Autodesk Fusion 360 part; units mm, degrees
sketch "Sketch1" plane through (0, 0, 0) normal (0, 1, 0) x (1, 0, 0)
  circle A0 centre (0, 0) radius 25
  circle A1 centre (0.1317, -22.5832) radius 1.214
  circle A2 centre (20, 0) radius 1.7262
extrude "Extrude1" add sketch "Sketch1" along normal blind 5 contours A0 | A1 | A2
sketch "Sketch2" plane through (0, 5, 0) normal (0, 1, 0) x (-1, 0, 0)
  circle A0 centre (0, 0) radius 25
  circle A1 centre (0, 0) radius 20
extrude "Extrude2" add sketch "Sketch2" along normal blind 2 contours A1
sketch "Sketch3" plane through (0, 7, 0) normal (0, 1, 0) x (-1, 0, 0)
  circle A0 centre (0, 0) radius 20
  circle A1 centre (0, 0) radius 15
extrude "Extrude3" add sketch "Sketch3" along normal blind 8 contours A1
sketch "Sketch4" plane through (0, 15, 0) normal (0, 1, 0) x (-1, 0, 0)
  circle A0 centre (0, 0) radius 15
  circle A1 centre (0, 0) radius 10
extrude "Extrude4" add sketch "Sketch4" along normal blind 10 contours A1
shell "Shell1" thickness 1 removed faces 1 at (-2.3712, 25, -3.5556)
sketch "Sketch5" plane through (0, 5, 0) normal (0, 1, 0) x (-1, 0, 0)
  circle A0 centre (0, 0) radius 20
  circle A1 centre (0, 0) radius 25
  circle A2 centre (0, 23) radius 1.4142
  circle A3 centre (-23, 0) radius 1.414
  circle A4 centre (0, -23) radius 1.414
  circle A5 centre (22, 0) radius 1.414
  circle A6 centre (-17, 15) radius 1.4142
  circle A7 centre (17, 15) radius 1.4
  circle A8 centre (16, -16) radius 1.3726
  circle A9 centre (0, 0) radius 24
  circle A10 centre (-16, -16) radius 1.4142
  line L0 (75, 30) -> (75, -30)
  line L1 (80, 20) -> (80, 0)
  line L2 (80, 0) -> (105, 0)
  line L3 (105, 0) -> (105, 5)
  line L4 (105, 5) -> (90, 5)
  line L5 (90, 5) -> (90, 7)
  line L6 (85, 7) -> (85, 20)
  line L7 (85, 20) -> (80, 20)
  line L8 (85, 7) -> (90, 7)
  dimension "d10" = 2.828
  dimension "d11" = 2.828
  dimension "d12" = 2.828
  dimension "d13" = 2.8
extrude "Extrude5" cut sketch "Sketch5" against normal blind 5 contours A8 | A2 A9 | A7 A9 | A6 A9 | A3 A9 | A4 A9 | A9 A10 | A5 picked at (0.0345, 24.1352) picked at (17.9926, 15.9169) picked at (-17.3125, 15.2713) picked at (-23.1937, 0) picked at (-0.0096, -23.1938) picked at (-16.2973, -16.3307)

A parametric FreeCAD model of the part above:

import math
import FreeCAD as App
import Part
import Sketcher
from FreeCAD import Vector
Q = App.Units.Quantity


def faces_at(feature, points):
    """Names of the faces that lie closest to the given points."""
    faces = feature.Shape.Faces
    near = lambda p: min(range(len(faces)), key=lambda i: faces[i].distToShape(Part.Vertex(*p))[0])
    return sorted({f"Face{near(p) + 1}" for p in points})

doc = App.newDocument("Part")
params = doc.addObject("Spreadsheet::Sheet", "Params")
for row, (alias, value) in enumerate([
    ("sketch1_diameter", "50 mm"),
    ("pad1_length", "5 mm"),
    ("sketch2_diameter", "40 mm"),
    ("pad2_length", "2 mm"),
    ("sketch3_diameter", "30 mm"),
    ("pad3_length", "8 mm"),
    ("sketch4_diameter", "20 mm"),
    ("pad4_length", "10 mm"),
    ("thickness_wall", "1 mm"),
    ("sketch5_radius", "1.4 mm"),
    ("sketch5_radius2", "24 mm"),
    ("pocket1_length", "5 mm"),
], start=1):
    params.set(f"A{row}", alias)
    params.set(f"B{row}", "=" + value)
    params.setAlias(f"B{row}", alias)

body = doc.addObject("PartDesign::Body", "Body")

# Sketch on XZ plane
sketch1 = doc.addObject("Sketcher::SketchObject", "Sketch")
body.addObject(sketch1)
sketch1.AttachmentSupport = (doc.XZ_Plane, [""])
sketch1.MapMode = "FlatFace"
sketch1.addGeometry(Part.Circle(Vector(0, 0, 0), Vector(0, 0, 1), 25), False)
sketch1.addConstraint([
    Sketcher.Constraint("Coincident", 0, 3, -1, 1),
    Sketcher.Constraint("Diameter", 0, Q("50 mm")),
])
sketch1.setExpression("Constraints[1]", "Params.sketch1_diameter")
pad1 = doc.addObject("PartDesign::Pad", "Pad")
body.addObject(pad1)
pad1.Profile = sketch1
pad1.setExpression("Length", "Params.pad1_length")
pad1.Reversed = True

# Sketch on XZ plane
sketch2 = doc.addObject("Sketcher::SketchObject", "Sketch001")
body.addObject(sketch2)
sketch2.AttachmentSupport = (doc.XZ_Plane, [""])
sketch2.MapMode = "FlatFace"
sketch2.AttachmentOffset = App.Placement(Vector(0, 0, -5), App.Rotation())
sketch2.addGeometry(Part.Circle(Vector(0, 0, 0), Vector(0, 0, 1), 20), False)
sketch2.addConstraint([
    Sketcher.Constraint("Coincident", 0, 3, -1, 1),
    Sketcher.Constraint("Diameter", 0, Q("40 mm")),
])
sketch2.setExpression("Constraints[1]", "Params.sketch2_diameter")
pad2 = doc.addObject("PartDesign::Pad", "Pad001")
body.addObject(pad2)
pad2.Profile = sketch2
pad2.setExpression("Length", "Params.pad2_length")
pad2.Reversed = True

# Sketch on XZ plane
sketch3 = doc.addObject("Sketcher::SketchObject", "Sketch002")
body.addObject(sketch3)
sketch3.AttachmentSupport = (doc.XZ_Plane, [""])
sketch3.MapMode = "FlatFace"
sketch3.AttachmentOffset = App.Placement(Vector(0, 0, -7), App.Rotation())
sketch3.addGeometry(Part.Circle(Vector(0, 0, 0), Vector(0, 0, 1), 15), False)
sketch3.addConstraint([
    Sketcher.Constraint("Coincident", 0, 3, -1, 1),
    Sketcher.Constraint("Diameter", 0, Q("30 mm")),
])
sketch3.setExpression("Constraints[1]", "Params.sketch3_diameter")
pad3 = doc.addObject("PartDesign::Pad", "Pad002")
body.addObject(pad3)
pad3.Profile = sketch3
pad3.setExpression("Length", "Params.pad3_length")
pad3.Reversed = True

# Sketch on XZ plane
sketch4 = doc.addObject("Sketcher::SketchObject", "Sketch003")
body.addObject(sketch4)
sketch4.AttachmentSupport = (doc.XZ_Plane, [""])
sketch4.MapMode = "FlatFace"
sketch4.AttachmentOffset = App.Placement(Vector(0, 0, -15), App.Rotation())
sketch4.addGeometry(Part.Circle(Vector(0, 0, 0), Vector(0, 0, 1), 10), False)
sketch4.addConstraint([
    Sketcher.Constraint("Coincident", 0, 3, -1, 1),
    Sketcher.Constraint("Diameter", 0, Q("20 mm")),
])
sketch4.setExpression("Constraints[1]", "Params.sketch4_diameter")
pad4 = doc.addObject("PartDesign::Pad", "Pad003")
body.addObject(pad4)
pad4.Profile = sketch4
pad4.setExpression("Length", "Params.pad4_length")
pad4.Reversed = True
doc.recompute()

thickness = doc.addObject("PartDesign::Thickness", "Thickness")
body.addObject(thickness)
thickness.Base = (pad4, faces_at(pad4, [(-2.371, 25, -3.556)]))
thickness.setExpression("Value", "Params.thickness_wall")
thickness.Reversed = True
thickness.Join = "Intersection"

# Sketch on XZ plane
sketch5 = doc.addObject("Sketcher::SketchObject", "Sketch004")
body.addObject(sketch5)
sketch5.AttachmentSupport = (doc.XZ_Plane, [""])
sketch5.MapMode = "FlatFace"
sketch5.AttachmentOffset = App.Placement(Vector(0, 0, -5), App.Rotation())
sketch5.addGeometry([
    Part.Circle(Vector(-16, -16, 0), Vector(0, 0, 1), 1.4),  # 0
    Part.ArcOfCircle(Part.Circle(Vector(0, 0, 0), Vector(0, 0, 1), 24), math.radians(87.56), math.radians(92.44)),  # 1
    Part.ArcOfCircle(Part.Circle(Vector(0, 23, 0), Vector(0, 0, 1), 1.4), math.radians(44), math.radians(136)),  # 2
    Part.ArcOfCircle(Part.Circle(Vector(-17, 15, 0), Vector(0, 0, 1), 1.4), math.radians(120), math.radians(158)),  # 3
    Part.ArcOfCircle(Part.Circle(Vector(0, 0, 0), Vector(0, 0, 1), 24), math.radians(137.49), math.radians(139.66)),  # 4
    Part.ArcOfCircle(Part.Circle(Vector(17, 15, 0), Vector(0, 0, 1), 1.4), math.radians(62), math.radians(381)),  # 5
    Part.ArcOfCircle(Part.Circle(Vector(0, 0, 0), Vector(0, 0, 1), 24), math.radians(40.23), math.radians(42.61)),  # 6
    Part.ArcOfCircle(Part.Circle(Vector(23, 0, 0), Vector(0, 0, 1), 1.4), math.radians(46), math.radians(314)),  # 7
    Part.ArcOfCircle(Part.Circle(Vector(0, 0, 0), Vector(0, 0, 1), 24), math.radians(-2.44), math.radians(2.44)),  # 8
    Part.ArcOfCircle(Part.Circle(Vector(0, 0, 0), Vector(0, 0, 1), 24), math.radians(-92.44), math.radians(-87.56)),  # 9
    Part.ArcOfCircle(Part.Circle(Vector(0, -23, 0), Vector(0, 0, 1), 1.4), math.radians(-44), math.radians(224)),  # 10
    Part.ArcOfCircle(Part.Circle(Vector(16, -16, 0), Vector(0, 0, 1), 1.4), math.radians(-31), math.radians(301)),  # 11
    Part.ArcOfCircle(Part.Circle(Vector(0, 0, 0), Vector(0, 0, 1), 24), math.radians(-45.84), math.radians(-44.16)),  # 12
    Part.Circle(Vector(-22, 0, 0), Vector(0, 0, 1), 1.4),  # 13
], False)
sketch5.addConstraint([
    Sketcher.Constraint("Coincident", 1, 1, 2, 1),
    Sketcher.Constraint("Coincident", 2, 2, 1, 2),
    Sketcher.Constraint("Coincident", 3, 1, 4, 1),
    Sketcher.Constraint("Coincident", 4, 2, 3, 2),
    Sketcher.Constraint("Coincident", 5, 1, 6, 2),
    Sketcher.Constraint("Coincident", 6, 1, 5, 2),
    Sketcher.Constraint("Coincident", 7, 1, 8, 2),
    Sketcher.Constraint("Coincident", 8, 1, 7, 2),
    Sketcher.Constraint("Coincident", 9, 1, 10, 2),
    Sketcher.Constraint("Coincident", 10, 1, 9, 2),
    Sketcher.Constraint("Coincident", 11, 1, 12, 2),
    Sketcher.Constraint("Coincident", 12, 1, 11, 2),
    Sketcher.Constraint("Coincident", 1, 3, -1, 1),
    Sketcher.Constraint("Coincident", 4, 3, -1, 1),
    Sketcher.Constraint("Coincident", 6, 3, -1, 1),
    Sketcher.Constraint("Coincident", 8, 3, -1, 1),
    Sketcher.Constraint("Coincident", 9, 3, -1, 1),
    Sketcher.Constraint("Coincident", 12, 3, -1, 1),
    Sketcher.Constraint("Equal", 1, 4),
    Sketcher.Constraint("Equal", 2, 5),
    Sketcher.Constraint("Equal", 4, 6),
    Sketcher.Constraint("Equal", 5, 7),
    Sketcher.Constraint("Equal", 6, 8),
    Sketcher.Constraint("Equal", 8, 9),
    Sketcher.Constraint("Equal", 7, 10),
    Sketcher.Constraint("Equal", 10, 11),
    Sketcher.Constraint("Equal", 9, 12),
    Sketcher.Constraint("Equal", 11, 13),
    Sketcher.Constraint("Symmetric", 2, 3, 10, 3, -1, 1),
    Sketcher.Constraint("Symmetric", 3, 3, 5, 3, -2),
    Sketcher.Constraint("Symmetric", 0, 3, 11, 3, -2),
    Sketcher.Constraint("PointOnObject", 2, 3, -2),
    Sketcher.Constraint("PointOnObject", 7, 3, -1),
    Sketcher.Constraint("PointOnObject", 13, 3, -1),
    Sketcher.Constraint("Radius", 3, Q("1.4 mm")),
    Sketcher.Constraint("Diameter", 13, Q("2.828 mm")),
    Sketcher.Constraint("Radius", 1, Q("24 mm")),
    Sketcher.Constraint("DistanceX", 0, 3, -1, 1, Q("16 mm")),
    Sketcher.Constraint("DistanceY", 0, 3, -1, 1, Q("16 mm")),
    Sketcher.Constraint("DistanceY", -1, 1, 2, 3, Q("23 mm")),
    Sketcher.Constraint("DistanceX", 3, 3, -1, 1, Q("17 mm")),
    Sketcher.Constraint("DistanceY", -1, 1, 3, 3, Q("15 mm")),
    Sketcher.Constraint("DistanceX", -1, 1, 7, 3, Q("23 mm")),
    Sketcher.Constraint("DistanceX", 13, 3, -1, 1, Q("22 mm")),
    Sketcher.Constraint("Diameter", 0, Q("2.7452 mm")),
])
sketch5.setExpression("Constraints[34]", "Params.sketch5_radius")
sketch5.setExpression("Constraints[36]", "Params.sketch5_radius2")
pocket1 = doc.addObject("PartDesign::Pocket", "Pocket")
body.addObject(pocket1)
pocket1.Profile = sketch5
pocket1.setExpression("Length", "Params.pocket1_length")
pocket1.Reversed = True

doc.recompute()
